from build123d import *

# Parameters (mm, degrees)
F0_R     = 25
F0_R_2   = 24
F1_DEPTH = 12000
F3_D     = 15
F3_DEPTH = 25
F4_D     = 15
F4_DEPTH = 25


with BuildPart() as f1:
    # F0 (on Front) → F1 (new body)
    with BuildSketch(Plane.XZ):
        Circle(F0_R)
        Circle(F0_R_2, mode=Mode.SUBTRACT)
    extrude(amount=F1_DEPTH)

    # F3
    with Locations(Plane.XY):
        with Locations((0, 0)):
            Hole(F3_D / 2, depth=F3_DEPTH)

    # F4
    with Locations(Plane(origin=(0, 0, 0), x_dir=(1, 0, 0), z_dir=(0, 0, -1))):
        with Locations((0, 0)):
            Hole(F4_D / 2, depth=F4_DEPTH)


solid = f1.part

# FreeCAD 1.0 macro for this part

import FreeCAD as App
import Part
import Sketcher
from FreeCAD import Vector
Q = App.Units.Quantity

doc = App.newDocument("Part")
body = doc.addObject("PartDesign::Body", "Body")

sketch1 = doc.addObject("Sketcher::SketchObject", "Sketch")
body.addObject(sketch1)
sketch1.AttachmentSupport = (doc.XZ_Plane, [""])
sketch1.MapMode = "FlatFace"
sketch1.addGeometry([
    Part.Circle(Vector(0, 0, 0), Vector(0, 0, 1), 25),
    Part.Circle(Vector(0, 0, 0), Vector(0, 0, 1), 24),
], False)
sketch1.addConstraint([
    Sketcher.Constraint("Coincident", 0, 3, -1, 1),
    Sketcher.Constraint("Coincident", 1, 3, -1, 1),
    Sketcher.Constraint("Diameter", 0, Q("50 mm")),
    Sketcher.Constraint("Diameter", 1, Q("48 mm")),
])
pad1 = doc.addObject("PartDesign::Pad", "Pad")
body.addObject(pad1)
pad1.Profile = sketch1
pad1.Length = 12000

sketch2 = doc.addObject("Sketcher::SketchObject", "Sketch001")
body.addObject(sketch2)
sketch2.AttachmentSupport = (doc.XY_Plane, [""])
sketch2.MapMode = "FlatFace"
sketch2.addGeometry(Part.Circle(Vector(0, 0, 0), Vector(0, 0, 1), 8), False)
sketch2.addConstraint([
    Sketcher.Constraint("Coincident", 0, 3, -1, 1),
    Sketcher.Constraint("Diameter", 0, Q("15 mm")),
])
doc.recompute()
hole = doc.addObject("PartDesign::Hole", "Hole")
body.addObject(hole)
hole.Profile = sketch2
hole.ThreadType = "None"
hole.Diameter = 15
hole.DepthType = "Dimension"
hole.Depth = 25
hole.DrillPoint = "Flat"

sketch3 = doc.addObject("Sketcher::SketchObject", "Sketch002")
body.addObject(sketch3)
sketch3.AttachmentSupport = (doc.XY_Plane, [""])
sketch3.MapMode = "FlatFace"
sketch3.addGeometry(Part.Circle(Vector(0, 0, 0), Vector(0, 0, 1), 8), False)
sketch3.addConstraint([
    Sketcher.Constraint("Coincident", 0, 3, -1, 1),
    Sketcher.Constraint("Diameter", 0, Q("15 mm")),
])
doc.recompute()
hole2 = doc.addObject("PartDesign::Hole", "Hole001")
body.addObject(hole2)
hole2.Profile = sketch3
hole2.ThreadType = "None"
hole2.Diameter = 15
hole2.DepthType = "Dimension"
hole2.Depth = 25
hole2.DrillPoint = "Flat"
hole2.Reversed = True

doc.recompute()
